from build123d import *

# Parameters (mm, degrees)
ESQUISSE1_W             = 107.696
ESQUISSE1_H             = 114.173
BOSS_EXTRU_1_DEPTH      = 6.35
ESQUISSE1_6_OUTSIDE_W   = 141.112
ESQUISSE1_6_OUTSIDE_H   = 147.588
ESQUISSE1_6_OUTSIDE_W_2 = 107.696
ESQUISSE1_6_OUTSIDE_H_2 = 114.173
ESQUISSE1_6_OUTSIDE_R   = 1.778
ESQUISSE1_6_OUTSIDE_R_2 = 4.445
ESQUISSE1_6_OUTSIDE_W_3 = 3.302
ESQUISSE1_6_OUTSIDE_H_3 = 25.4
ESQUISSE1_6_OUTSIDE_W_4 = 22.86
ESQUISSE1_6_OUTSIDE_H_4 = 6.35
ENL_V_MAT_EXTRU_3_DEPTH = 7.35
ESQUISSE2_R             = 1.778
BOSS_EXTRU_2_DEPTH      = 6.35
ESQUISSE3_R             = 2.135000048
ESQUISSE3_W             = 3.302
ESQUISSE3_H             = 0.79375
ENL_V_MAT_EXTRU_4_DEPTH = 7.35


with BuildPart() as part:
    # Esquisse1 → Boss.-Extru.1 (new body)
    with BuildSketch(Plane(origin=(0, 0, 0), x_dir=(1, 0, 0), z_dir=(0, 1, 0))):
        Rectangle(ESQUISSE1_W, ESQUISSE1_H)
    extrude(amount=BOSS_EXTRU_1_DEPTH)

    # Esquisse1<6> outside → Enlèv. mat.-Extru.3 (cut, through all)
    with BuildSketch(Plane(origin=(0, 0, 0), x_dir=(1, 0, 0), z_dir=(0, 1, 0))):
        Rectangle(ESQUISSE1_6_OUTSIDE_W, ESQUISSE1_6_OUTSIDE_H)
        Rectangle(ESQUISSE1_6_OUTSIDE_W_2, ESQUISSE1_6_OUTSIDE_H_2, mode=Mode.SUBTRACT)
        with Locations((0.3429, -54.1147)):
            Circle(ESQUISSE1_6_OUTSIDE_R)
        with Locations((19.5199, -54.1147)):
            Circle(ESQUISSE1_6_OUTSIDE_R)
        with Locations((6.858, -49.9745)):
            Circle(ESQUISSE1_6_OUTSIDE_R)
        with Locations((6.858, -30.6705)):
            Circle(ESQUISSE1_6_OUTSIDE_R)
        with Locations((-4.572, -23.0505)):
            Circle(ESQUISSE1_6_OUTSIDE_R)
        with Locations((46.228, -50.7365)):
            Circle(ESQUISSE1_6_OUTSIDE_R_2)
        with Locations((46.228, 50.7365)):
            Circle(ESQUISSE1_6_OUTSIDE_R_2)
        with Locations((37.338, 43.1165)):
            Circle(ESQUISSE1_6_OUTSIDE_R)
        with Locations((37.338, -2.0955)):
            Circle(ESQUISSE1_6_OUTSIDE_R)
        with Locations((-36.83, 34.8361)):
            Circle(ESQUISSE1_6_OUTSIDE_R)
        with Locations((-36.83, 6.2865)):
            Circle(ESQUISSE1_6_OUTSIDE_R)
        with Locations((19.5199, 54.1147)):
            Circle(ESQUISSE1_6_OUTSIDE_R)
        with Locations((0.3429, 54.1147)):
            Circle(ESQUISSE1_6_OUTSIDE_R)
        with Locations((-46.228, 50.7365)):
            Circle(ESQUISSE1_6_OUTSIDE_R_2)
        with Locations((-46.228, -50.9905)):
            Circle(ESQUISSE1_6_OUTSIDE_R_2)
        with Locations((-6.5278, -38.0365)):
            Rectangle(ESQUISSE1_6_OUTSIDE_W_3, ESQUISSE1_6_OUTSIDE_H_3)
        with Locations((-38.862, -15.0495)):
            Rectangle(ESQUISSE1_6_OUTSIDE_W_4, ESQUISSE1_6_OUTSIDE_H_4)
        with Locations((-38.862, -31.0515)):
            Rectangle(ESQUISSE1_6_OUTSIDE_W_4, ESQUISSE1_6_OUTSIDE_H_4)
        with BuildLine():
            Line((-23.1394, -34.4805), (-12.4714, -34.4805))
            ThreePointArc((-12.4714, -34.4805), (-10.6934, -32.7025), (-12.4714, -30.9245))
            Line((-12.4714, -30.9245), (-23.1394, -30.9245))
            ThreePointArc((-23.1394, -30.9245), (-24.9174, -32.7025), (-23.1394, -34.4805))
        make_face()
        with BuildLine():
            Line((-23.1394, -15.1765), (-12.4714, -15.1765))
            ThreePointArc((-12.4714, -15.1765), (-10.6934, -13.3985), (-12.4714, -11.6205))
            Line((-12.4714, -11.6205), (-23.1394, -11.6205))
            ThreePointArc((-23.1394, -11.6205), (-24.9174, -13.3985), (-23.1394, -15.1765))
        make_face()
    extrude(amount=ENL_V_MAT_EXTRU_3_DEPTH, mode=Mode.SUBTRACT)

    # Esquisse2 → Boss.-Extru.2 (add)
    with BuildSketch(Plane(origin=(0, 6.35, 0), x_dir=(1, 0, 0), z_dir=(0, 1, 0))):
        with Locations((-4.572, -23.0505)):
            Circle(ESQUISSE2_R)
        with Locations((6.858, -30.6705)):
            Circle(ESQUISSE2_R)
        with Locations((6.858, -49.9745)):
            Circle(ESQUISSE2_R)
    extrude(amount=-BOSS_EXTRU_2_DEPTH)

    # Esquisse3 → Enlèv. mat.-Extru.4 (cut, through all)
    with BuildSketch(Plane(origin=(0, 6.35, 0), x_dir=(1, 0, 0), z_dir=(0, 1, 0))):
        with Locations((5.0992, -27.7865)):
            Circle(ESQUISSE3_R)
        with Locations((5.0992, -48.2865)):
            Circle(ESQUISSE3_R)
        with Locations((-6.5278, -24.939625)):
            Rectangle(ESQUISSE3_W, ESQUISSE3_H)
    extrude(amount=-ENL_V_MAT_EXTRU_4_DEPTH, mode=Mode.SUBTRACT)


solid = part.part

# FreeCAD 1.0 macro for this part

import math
import FreeCAD as App
import Part
import Sketcher
from FreeCAD import Vector
Q = App.Units.Quantity

doc = App.newDocument("Part")
params = doc.addObject("Spreadsheet::Sheet", "Params")
for row, (alias, value) in enumerate([
    ("sketch1_width", "4.24 in"),
    ("sketch1_height", "4.495 in"),
    ("pad1_length", "0.25 in"),
    ("sketch2_diameter", "0.14 in"),
    ("sketch2_diameter2", "0.35 in"),
    ("sketch2_height", "1 in"),
    ("sketch2_width", "0.9 in"),
    ("sketch2_width2", "4.24 in"),
    ("sketch3_diameter", "0.14 in"),
    ("pad2_length", "0.25 in"),
    ("sketch4_width", "0.13 in"),
    ("sketch4_height", "0.03125 in"),
], start=1):
    params.set(f"A{row}", alias)
    params.set(f"B{row}", "=" + value)
    params.setAlias(f"B{row}", alias)

body = doc.addObject("PartDesign::Body", "Body")

# Sketch on XZ plane
sketch1 = body.newObject("Sketcher::SketchObject", "Sketch")
sketch1.AttachmentSupport = (doc.getObject("XZ_Plane"), [""])
sketch1.MapMode = "FlatFace"
sketch1.addGeometry([
    Part.LineSegment(Vector(-53.848, -57.0865, 0), Vector(-53.848, 57.0865, 0)),
    Part.LineSegment(Vector(-53.848, 57.0865, 0), Vector(53.848, 57.0865, 0)),
    Part.LineSegment(Vector(53.848, 57.0865, 0), Vector(53.848, -57.0865, 0)),
    Part.LineSegment(Vector(53.848, -57.0865, 0), Vector(-53.848, -57.0865, 0)),
], False)
sketch1.addConstraint([
    Sketcher.Constraint("Coincident", 0, 2, 1, 1),
    Sketcher.Constraint("Coincident", 1, 2, 2, 1),
    Sketcher.Constraint("Coincident", 2, 2, 3, 1),
    Sketcher.Constraint("Coincident", 3, 2, 0, 1),
    Sketcher.Constraint("Vertical", 0),
    Sketcher.Constraint("Horizontal", 1),
    Sketcher.Constraint("Vertical", 2),
    Sketcher.Constraint("Horizontal", 3),
    Sketcher.Constraint("Symmetric", 0, 2, 2, 2, -1, 1),
    Sketcher.Constraint("DistanceX", 1, 1, 1, 2, Q("4.24 in")),
    Sketcher.Constraint("DistanceY", 0, 1, 0, 2, Q("4.495 in")),
])
sketch1.setExpression("Constraints[9]", "Params.sketch1_width")
sketch1.setExpression("Constraints[10]", "Params.sketch1_height")
pad1 = body.newObject("PartDesign::Pad", "Pad")
pad1.Profile = sketch1
pad1.setExpression("Length", "Params.pad1_length")
pad1.Reversed = True

# Sketch on XZ plane
sketch2 = body.newObject("Sketcher::SketchObject", "Sketch001")
sketch2.AttachmentSupport = (doc.getObject("XZ_Plane"), [""])
sketch2.MapMode = "FlatFace"
sketch2.addGeometry([
    Part.LineSegment(Vector(-70.556, -73.794, 0), Vector(-70.556, 73.794, 0)),  # 0
    Part.LineSegment(Vector(-70.556, 73.794, 0), Vector(70.556, 73.794, 0)),  # 1
    Part.LineSegment(Vector(70.556, 73.794, 0), Vector(70.556, -73.794, 0)),  # 2
    Part.LineSegment(Vector(70.556, -73.794, 0), Vector(-70.556, -73.794, 0)),  # 3
    Part.LineSegment(Vector(53.848, 57.0865, 0), Vector(-53.848, 57.0865, 0)),  # 4
    Part.LineSegment(Vector(-53.848, 57.0865, 0), Vector(-53.848, -57.0865, 0)),  # 5
    Part.LineSegment(Vector(-53.848, -57.0865, 0), Vector(53.848, -57.0865, 0)),  # 6
    Part.LineSegment(Vector(53.848, -57.0865, 0), Vector(53.848, 57.0865, 0)),  # 7
    Part.Circle(Vector(0.3429, 54.1147, 0), Vector(0, 0, 1), 1.778),  # 8
    Part.Circle(Vector(19.5199, 54.1147, 0), Vector(0, 0, 1), 1.778),  # 9
    Part.Circle(Vector(6.858, 49.9745, 0), Vector(0, 0, 1), 1.778),  # 10
    Part.Circle(Vector(6.858, 30.6705, 0), Vector(0, 0, 1), 1.778),  # 11
    Part.Circle(Vector(-4.572, 23.0505, 0), Vector(0, 0, 1), 1.778),  # 12
    Part.Circle(Vector(46.228, 50.7365, 0), Vector(0, 0, 1), 4.445),  # 13
    Part.Circle(Vector(46.228, -50.7365, 0), Vector(0, 0, 1), 4.445),  # 14
    Part.Circle(Vector(37.338, -43.1165, 0), Vector(0, 0, 1), 1.778),  # 15
    Part.Circle(Vector(37.338, 2.0955, 0), Vector(0, 0, 1), 1.778),  # 16
    Part.Circle(Vector(-36.83, -34.8361, 0), Vector(0, 0, 1), 1.778),  # 17
    Part.Circle(Vector(-36.83, -6.2865, 0), Vector(0, 0, 1), 1.778),  # 18
    Part.Circle(Vector(19.5199, -54.1147, 0), Vector(0, 0, 1), 1.778),  # 19
    Part.Circle(Vector(0.3429, -54.1147, 0), Vector(0, 0, 1), 1.778),  # 20
    Part.Circle(Vector(-46.228, -50.7365, 0), Vector(0, 0, 1), 4.445),  # 21
    Part.Circle(Vector(-46.228, 50.9905, 0), Vector(0, 0, 1), 4.445),  # 22
    Part.LineSegment(Vector(-8.1788, 25.3365, 0), Vector(-8.1788, 50.7365, 0)),  # 23
    Part.LineSegment(Vector(-8.1788, 50.7365, 0), Vector(-4.8768, 50.7365, 0)),  # 24
    Part.LineSegment(Vector(-4.8768, 50.7365, 0), Vector(-4.8768, 25.3365, 0)),  # 25
    Part.LineSegment(Vector(-4.8768, 25.3365, 0), Vector(-8.1788, 25.3365, 0)),  # 26
    Part.LineSegment(Vector(-50.292, 11.8745, 0), Vector(-50.292, 18.2245, 0)),  # 27
    Part.LineSegment(Vector(-50.292, 18.2245, 0), Vector(-27.432, 18.2245, 0)),  # 28
    Part.LineSegment(Vector(-27.432, 18.2245, 0), Vector(-27.432, 11.8745, 0)),  # 29
    Part.LineSegment(Vector(-27.432, 11.8745, 0), Vector(-50.292, 11.8745, 0)),  # 30
    Part.LineSegment(Vector(-50.292, 27.8765, 0), Vector(-50.292, 34.2265, 0)),  # 31
    Part.LineSegment(Vector(-50.292, 34.2265, 0), Vector(-27.432, 34.2265, 0)),  # 32
    Part.LineSegment(Vector(-27.432, 34.2265, 0), Vector(-27.432, 27.8765, 0)),  # 33
    Part.LineSegment(Vector(-27.432, 27.8765, 0), Vector(-50.292, 27.8765, 0)),  # 34
    Part.LineSegment(Vector(-23.1394, 34.4805, 0), Vector(-12.4714, 34.4805, 0)),  # 35
    Part.ArcOfCircle(Part.Circle(Vector(-12.4714, 32.7025, 0), Vector(0, 0, 1), 1.778), math.radians(-90), math.radians(90)),  # 36
    Part.LineSegment(Vector(-12.4714, 30.9245, 0), Vector(-23.1394, 30.9245, 0)),  # 37
    Part.ArcOfCircle(Part.Circle(Vector(-23.1394, 32.7025, 0), Vector(0, 0, 1), 1.778), math.radians(90), math.radians(270)),  # 38
    Part.LineSegment(Vector(-23.1394, 15.1765, 0), Vector(-12.4714, 15.1765, 0)),  # 39
    Part.ArcOfCircle(Part.Circle(Vector(-12.4714, 13.3985, 0), Vector(0, 0, 1), 1.778), math.radians(-90), math.radians(90)),  # 40
    Part.LineSegment(Vector(-12.4714, 11.6205, 0), Vector(-23.1394, 11.6205, 0)),  # 41
    Part.ArcOfCircle(Part.Circle(Vector(-23.1394, 13.3985, 0), Vector(0, 0, 1), 1.778), math.radians(90), math.radians(270)),  # 42
], False)
sketch2.addConstraint([
    Sketcher.Constraint("Coincident", 0, 2, 1, 1),
    Sketcher.Constraint("Coincident", 1, 2, 2, 1),
    Sketcher.Constraint("Coincident", 2, 2, 3, 1),
    Sketcher.Constraint("Coincident", 3, 2, 0, 1),
    Sketcher.Constraint("Coincident", 4, 2, 5, 1),
    Sketcher.Constraint("Coincident", 5, 2, 6, 1),
    Sketcher.Constraint("Coincident", 6, 2, 7, 1),
    Sketcher.Constraint("Coincident", 7, 2, 4, 1),
    Sketcher.Constraint("Coincident", 23, 2, 24, 1),
    Sketcher.Constraint("Coincident", 24, 2, 25, 1),
    Sketcher.Constraint("Coincident", 25, 2, 26, 1),
    Sketcher.Constraint("Coincident", 26, 2, 23, 1),
    Sketcher.Constraint("Coincident", 27, 2, 28, 1),
    Sketcher.Constraint("Coincident", 28, 2, 29, 1),
    Sketcher.Constraint("Coincident", 29, 2, 30, 1),
    Sketcher.Constraint("Coincident", 30, 2, 27, 1),
    Sketcher.Constraint("Coincident", 31, 2, 32, 1),
    Sketcher.Constraint("Coincident", 32, 2, 33, 1),
    Sketcher.Constraint("Coincident", 33, 2, 34, 1),
    Sketcher.Constraint("Coincident", 34, 2, 31, 1),
    Sketcher.Constraint("Tangent", 35, 2, 36, 2),
    Sketcher.Constraint("Tangent", 36, 1, 37, 1),
    Sketcher.Constraint("Tangent", 37, 2, 38, 2),
    Sketcher.Constraint("Tangent", 38, 1, 35, 1),
    Sketcher.Constraint("Tangent", 39, 2, 40, 2),
    Sketcher.Constraint("Tangent", 40, 1, 41, 1),
    Sketcher.Constraint("Tangent", 41, 2, 42, 2),
    Sketcher.Constraint("Tangent", 42, 1, 39, 1),
    Sketcher.Constraint("Vertical", 0),
    Sketcher.Constraint("Horizontal", 1),
    Sketcher.Constraint("Vertical", 2),
    Sketcher.Constraint("Horizontal", 3),
    Sketcher.Constraint("Horizontal", 4),
    Sketcher.Constraint("Vertical", 5),
    Sketcher.Constraint("Horizontal", 6),
    Sketcher.Constraint("Vertical", 7),
    Sketcher.Constraint("Vertical", 23),
    Sketcher.Constraint("Horizontal", 24),
    Sketcher.Constraint("Vertical", 25),
    Sketcher.Constraint("Horizontal", 26),
    Sketcher.Constraint("Vertical", 27),
    Sketcher.Constraint("Horizontal", 28),
    Sketcher.Constraint("Vertical", 29),
    Sketcher.Constraint("Horizontal", 30),
    Sketcher.Constraint("Vertical", 31),
    Sketcher.Constraint("Horizontal", 32),
    Sketcher.Constraint("Vertical", 33),
    Sketcher.Constraint("Horizontal", 34),
    Sketcher.Constraint("Horizontal", 35),
    Sketcher.Constraint("Horizontal", 37),
    Sketcher.Constraint("Horizontal", 39),
    Sketcher.Constraint("Horizontal", 41),
    Sketcher.Constraint("Equal", 8, 9),
    Sketcher.Constraint("Equal", 9, 10),
    Sketcher.Constraint("Equal", 10, 11),
    Sketcher.Constraint("Equal", 11, 12),
    Sketcher.Constraint("Equal", 13, 14),
    Sketcher.Constraint("Equal", 12, 15),
    Sketcher.Constraint("Equal", 15, 16),
    Sketcher.Constraint("Equal", 16, 17),
    Sketcher.Constraint("Equal", 17, 18),
    Sketcher.Constraint("Equal", 18, 19),
    Sketcher.Constraint("Equal", 19, 20),
    Sketcher.Constraint("Equal", 14, 21),
    Sketcher.Constraint("Equal", 21, 22),
    Sketcher.Constraint("Equal", 20, 36),
    Sketcher.Constraint("Equal", 38, 40),
    Sketcher.Constraint("Symmetric", 13, 3, 21, 3, -1, 1),
    Sketcher.Constraint("Symmetric", 0, 2, 2, 2, -1, 1),
    Sketcher.Constraint("Symmetric", 4, 2, 6, 2, -1, 1),
    Sketcher.Constraint("Symmetric", 14, 3, 21, 3, -2),
    Sketcher.Constraint("Symmetric", 9, 3, 19, 3, -1),
    Sketcher.Constraint("Symmetric", 8, 3, 20, 3, -1),
    Sketcher.Constraint("Horizontal", 8, 3, 9, 3),
    Sketcher.Constraint("Horizontal", 13, 3, 23, 2),
    Sketcher.Constraint("Vertical", 10, 3, 11, 3),
    Sketcher.Constraint("Vertical", 15, 3, 16, 3),
    Sketcher.Constraint("Vertical", 17, 3, 18, 3),
    Sketcher.Constraint("Vertical", 21, 3, 22, 3),
    Sketcher.Constraint("Vertical", 36, 3, 40, 3),
    Sketcher.Constraint("Vertical", 38, 3, 42, 3),
    Sketcher.Constraint("Vertical", 30, 2, 31, 2),
    Sketcher.Constraint("Vertical", 29, 2, 32, 2),
    Sketcher.Constraint("Equal", 29, 31),
    Sketcher.Constraint("Diameter", 8, Q("0.14 in")),
    Sketcher.Constraint("Diameter", 13, Q("0.35 in")),
    Sketcher.Constraint("DistanceY", 23, 1, 23, 2, Q("1 in")),
    Sketcher.Constraint("DistanceX", 28, 1, 28, 2, Q("0.9 in")),
    Sketcher.Constraint("DistanceX", 12, 3, 13, 3, Q("2 in")),
    Sketcher.Constraint("DistanceY", 5, 2, 18, 3, Q("2 in")),
    Sketcher.Constraint("DistanceX", 4, 2, 4, 1, Q("4.24 in")),
    Sketcher.Constraint("DistanceX", 24, 1, 24, 2, Q("0.13 in")),
    Sketcher.Constraint("DistanceX", 35, 1, 35, 2, Q("0.42 in")),
    Sketcher.Constraint("DistanceY", 27, 1, 27, 2, Q("0.25 in")),
    Sketcher.Constraint("DistanceY", 12, 3, 11, 3, Q("0.3 in")),
    Sketcher.Constraint("DistanceY", 14, 3, 15, 3, Q("0.3 in")),
    Sketcher.Constraint("DistanceX", 11, 3, 15, 3, Q("1.2 in")),
    Sketcher.Constraint("DistanceY", 12, 3, 22, 3, Q("1.1 in")),
    Sketcher.Constraint("DistanceX", 4, 2, 22, 3, Q("0.3 in")),
    Sketcher.Constraint("DistanceY", 31, 2, 4, 2, Q("0.9 in")),
    Sketcher.Constraint("DistanceY", 39, 2, 26, 2, Q("0.4 in")),
    Sketcher.Constraint("DistanceY", 5, 2, 5, 1, Q("4.495 in")),
    Sketcher.Constraint("DistanceX", -1, 1, 10, 3, Q("0.27 in")),
    Sketcher.Constraint("DistanceX", 17, 3, -1, 1, Q("1.45 in")),
    Sketcher.Constraint("DistanceX", 27, 2, -1, 1, Q("1.98 in")),
    Sketcher.Constraint("DistanceY", 11, 3, 10, 3, Q("0.76 in")),
    Sketcher.Constraint("DistanceY", 10, 3, 13, 3, Q("0.03 in")),
    Sketcher.Constraint("DistanceY", 15, 3, 16, 3, Q("1.78 in")),
    Sketcher.Constraint("DistanceY", 21, 3, 18, 3, Q("1.75 in")),
    Sketcher.Constraint("DistanceY", 12, 3, 36, 3, Q("0.38 in")),
    Sketcher.Constraint("DistanceY", 42, 3, 27, 2, Q("0.19 in")),
    Sketcher.Constraint("DistanceX", 36, 3, -1, 1, Q("0.491 in")),
    Sketcher.Constraint("DistanceX", 23, 2, -1, 1, Q("0.322 in")),
    Sketcher.Constraint("DistanceX", 8, 3, 9, 3, Q("0.755 in")),
    Sketcher.Constraint("DistanceY", 10, 3, 8, 3, Q("0.163 in")),
    Sketcher.Constraint("DistanceY", 17, 3, 12, 3, Q("2.279 in")),
    Sketcher.Constraint("DistanceX", 1, 1, 1, 2, Q("141.112 mm")),
    Sketcher.Constraint("DistanceY", 0, 1, 0, 2, Q("147.588 mm")),
    Sketcher.Constraint("DistanceX", -1, 1, 8, 3, Q("0.0135 in")),
])
sketch2.setExpression("Constraints[84]", "Params.sketch2_diameter")
sketch2.setExpression("Constraints[85]", "Params.sketch2_diameter2")
sketch2.setExpression("Constraints[86]", "Params.sketch2_height")
sketch2.setExpression("Constraints[87]", "Params.sketch2_width")
sketch2.setExpression("Constraints[90]", "Params.sketch2_width2")
pocket1 = body.newObject("PartDesign::Pocket", "Pocket")
pocket1.Profile = sketch2
pocket1.Type = "ThroughAll"

# Sketch on XZ plane
sketch3 = body.newObject("Sketcher::SketchObject", "Sketch002")
sketch3.AttachmentSupport = (doc.getObject("XZ_Plane"), [""])
sketch3.MapMode = "FlatFace"
sketch3.AttachmentOffset = App.Placement(Vector(0, 0, -0.25 * 25.4), App.Rotation())
sketch3.addGeometry([
    Part.Circle(Vector(-4.572, 23.0505, 0), Vector(0, 0, 1), 1.778),
    Part.Circle(Vector(6.858, 30.6705, 0), Vector(0, 0, 1), 1.778),
    Part.Circle(Vector(6.858, 49.9745, 0), Vector(0, 0, 1), 1.778),
], False)
sketch3.addConstraint([
    Sketcher.Constraint("Equal", 0, 1),
    Sketcher.Constraint("Equal", 1, 2),
    Sketcher.Constraint("Vertical", 1, 3, 2, 3),
    Sketcher.Constraint("Diameter", 0, Q("0.14 in")),
    Sketcher.Constraint("DistanceY", 0, 3, 1, 3, Q("0.3 in")),
    Sketcher.Constraint("DistanceX", 0, 3, -1, 1, Q("0.18 in")),
    Sketcher.Constraint("DistanceX", -1, 1, 1, 3, Q("0.27 in")),
    Sketcher.Constraint("DistanceY", 1, 3, 2, 3, Q("0.76 in")),
    Sketcher.Constraint("DistanceY", -1, 1, 0, 3, Q("0.9075 in")),
])
sketch3.setExpression("Constraints[3]", "Params.sketch3_diameter")
pad2 = body.newObject("PartDesign::Pad", "Pad001")
pad2.Profile = sketch3
pad2.setExpression("Length", "Params.pad2_length")

# Sketch on XZ plane
sketch4 = body.newObject("Sketcher::SketchObject", "Sketch003")
sketch4.AttachmentSupport = (doc.getObject("XZ_Plane"), [""])
sketch4.MapMode = "FlatFace"
sketch4.AttachmentOffset = App.Placement(Vector(0, 0, -0.25 * 25.4), App.Rotation())
sketch4.addGeometry([
    Part.Circle(Vector(5.0992, 27.7865, 0), Vector(0, 0, 1), 2.135),  # 0
    Part.Circle(Vector(5.0992, 48.2865, 0), Vector(0, 0, 1), 2.135),  # 1
    Part.LineSegment(Vector(-8.1788, 24.54275, 0), Vector(-8.1788, 25.3365, 0)),  # 2
    Part.LineSegment(Vector(-8.1788, 25.3365, 0), Vector(-4.8768, 25.3365, 0)),  # 3
    Part.LineSegment(Vector(-4.8768, 25.3365, 0), Vector(-4.8768, 24.54275, 0)),  # 4
    Part.LineSegment(Vector(-4.8768, 24.54275, 0), Vector(-8.1788, 24.54275, 0)),  # 5
], False)
sketch4.addConstraint([
    Sketcher.Constraint("Coincident", 2, 2, 3, 1),
    Sketcher.Constraint("Coincident", 3, 2, 4, 1),
    Sketcher.Constraint("Coincident", 4, 2, 5, 1),
    Sketcher.Constraint("Coincident", 5, 2, 2, 1),
    Sketcher.Constraint("Vertical", 2),
    Sketcher.Constraint("Horizontal", 3),
    Sketcher.Constraint("Vertical", 4),
    Sketcher.Constraint("Horizontal", 5),
    Sketcher.Constraint("Equal", 0, 1),
    Sketcher.Constraint("Vertical", 0, 3, 1, 3),
    Sketcher.Constraint("DistanceX", 3, 1, 3, 2, Q("0.13 in")),
    Sketcher.Constraint("Diameter", 0, Q("4.27 mm")),
    Sketcher.Constraint("DistanceY", 2, 1, 2, 2, Q("0.03125 in")),
    Sketcher.Constraint("DistanceX", 2, 2, -1, 1, Q("0.322 in")),
    Sketcher.Constraint("DistanceY", -1, 1, 2, 2, Q("0.9975 in")),
    Sketcher.Constraint("DistanceX", -1, 1, 0, 3, Q("5.0992 mm")),
    Sketcher.Constraint("DistanceY", -1, 1, 0, 3, Q("27.7865 mm")),
    Sketcher.Constraint("DistanceY", -1, 1, 1, 3, Q("48.2865 mm")),
])
sketch4.setExpression("Constraints[10]", "Params.sketch4_width")
sketch4.setExpression("Constraints[12]", "Params.sketch4_height")
pocket2 = body.newObject("PartDesign::Pocket", "Pocket001")
pocket2.Profile = sketch4
pocket2.Type = "ThroughAll"
pocket2.Reversed = True

doc.recompute()
